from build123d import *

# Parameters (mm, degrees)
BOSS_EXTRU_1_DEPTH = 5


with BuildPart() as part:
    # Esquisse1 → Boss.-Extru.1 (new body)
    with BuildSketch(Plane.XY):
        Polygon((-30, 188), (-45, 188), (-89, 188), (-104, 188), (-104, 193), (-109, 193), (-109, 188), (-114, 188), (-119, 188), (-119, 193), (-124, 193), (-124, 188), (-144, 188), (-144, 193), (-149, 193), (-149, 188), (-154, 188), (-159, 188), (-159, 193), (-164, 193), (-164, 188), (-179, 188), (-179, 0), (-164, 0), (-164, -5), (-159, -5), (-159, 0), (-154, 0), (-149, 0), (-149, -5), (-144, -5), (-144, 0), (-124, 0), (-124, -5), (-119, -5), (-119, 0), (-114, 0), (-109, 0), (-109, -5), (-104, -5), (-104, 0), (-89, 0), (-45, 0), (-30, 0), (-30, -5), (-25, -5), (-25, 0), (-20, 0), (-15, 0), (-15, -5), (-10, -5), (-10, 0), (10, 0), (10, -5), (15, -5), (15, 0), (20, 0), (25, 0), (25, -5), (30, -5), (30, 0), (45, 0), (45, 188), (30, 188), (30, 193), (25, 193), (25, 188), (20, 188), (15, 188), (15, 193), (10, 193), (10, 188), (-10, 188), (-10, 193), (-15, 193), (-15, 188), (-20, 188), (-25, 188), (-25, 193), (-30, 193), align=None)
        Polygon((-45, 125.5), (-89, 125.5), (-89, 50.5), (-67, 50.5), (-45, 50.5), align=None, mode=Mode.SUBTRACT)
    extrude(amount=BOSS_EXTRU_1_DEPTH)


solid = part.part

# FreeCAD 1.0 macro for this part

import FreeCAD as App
import Part
import Sketcher


def add_polygon(sketch, points):
    """Adds a closed chain of lines whose ends are joined by coincident constraints."""
    first, n = sketch.GeometryCount, len(points)
    for a, b in zip(points, points[1:] + points[:1]):
        sketch.addGeometry(Part.LineSegment(App.Vector(*a, 0), App.Vector(*b, 0)), False)
    for i in range(n):
        sketch.addConstraint(Sketcher.Constraint("Coincident", first + i, 2, first + (i + 1) % n, 1))

doc = App.newDocument("Part")
params = doc.addObject("Spreadsheet::Sheet", "Params")
for row, (alias, value) in enumerate([
    ("sketch1_width", "74 mm"),
    ("sketch1_width2", "5 mm"),
    ("sketch1_width3", "10 mm"),
    ("sketch1_width4", "20 mm"),
    ("sketch1_width5", "15 mm"),
    ("pad1_length", "5 mm"),
], start=1):
    params.set(f"A{row}", alias)
    params.set(f"B{row}", "=" + value)
    params.setAlias(f"B{row}", alias)

body = doc.addObject("PartDesign::Body", "Body")

# Sketch on XY plane
sketch1 = body.newObject("Sketcher::SketchObject", "Sketch")
sketch1.AttachmentSupport = (doc.getObject("XY_Plane"), [""])
sketch1.MapMode = "FlatFace"
add_polygon(sketch1, [(-30, 188), (-104, 188), (-104, 193), (-109, 193), (-109, 188), (-119, 188), (-119, 193), (-124, 193), (-124, 188), (-144, 188), (-144, 193), (-149, 193), (-149, 188), (-159, 188), (-159, 193), (-164, 193), (-164, 188), (-179, 188), (-179, 0), (-164, 0), (-164, -5), (-159, -5), (-159, 0), (-149, 0), (-149, -5), (-144, -5), (-144, 0), (-124, 0), (-124, -5), (-119, -5), (-119, 0), (-109, 0), (-109, -5), (-104, -5), (-104, 0), (-30, 0), (-30, -5), (-25, -5), (-25, 0), (-15, 0), (-15, -5), (-10, -5), (-10, 0), (10, 0), (10, -5), (15, -5), (15, 0), (25, 0), (25, -5), (30, -5), (30, 0), (45, 0), (45, 188), (30, 188), (30, 193), (25, 193), (25, 188), (15, 188), (15, 193), (10, 193), (10, 188), (-10, 188), (-10, 193), (-15, 193), (-15, 188), (-25, 188), (-25, 193), (-30, 193)])  # lines 0-67
add_polygon(sketch1, [(-89, 126), (-45, 126), (-45, 50), (-89, 50)])  # lines 68-71
sketch1.addConstraint(Sketcher.Constraint("Horizontal", 0))
sketch1.addConstraint(Sketcher.Constraint("Vertical", 1))
sketch1.addConstraint(Sketcher.Constraint("Horizontal", 2))
sketch1.addConstraint(Sketcher.Constraint("Vertical", 3))
sketch1.addConstraint(Sketcher.Constraint("Horizontal", 4))
sketch1.addConstraint(Sketcher.Constraint("Vertical", 5))
sketch1.addConstraint(Sketcher.Constraint("Horizontal", 6))
sketch1.addConstraint(Sketcher.Constraint("Vertical", 7))
sketch1.addConstraint(Sketcher.Constraint("Horizontal", 8))
sketch1.addConstraint(Sketcher.Constraint("Vertical", 9))
sketch1.addConstraint(Sketcher.Constraint("Horizontal", 10))
sketch1.addConstraint(Sketcher.Constraint("Vertical", 11))
sketch1.addConstraint(Sketcher.Constraint("Horizontal", 12))
sketch1.addConstraint(Sketcher.Constraint("Vertical", 13))
sketch1.addConstraint(Sketcher.Constraint("Horizontal", 14))
sketch1.addConstraint(Sketcher.Constraint("Vertical", 15))
sketch1.addConstraint(Sketcher.Constraint("Horizontal", 16))
sketch1.addConstraint(Sketcher.Constraint("Vertical", 17))
sketch1.addConstraint(Sketcher.Constraint("Horizontal", 18))
sketch1.addConstraint(Sketcher.Constraint("Vertical", 19))
sketch1.addConstraint(Sketcher.Constraint("Horizontal", 20))
sketch1.addConstraint(Sketcher.Constraint("Vertical", 21))
sketch1.addConstraint(Sketcher.Constraint("Horizontal", 22))
sketch1.addConstraint(Sketcher.Constraint("Vertical", 23))
sketch1.addConstraint(Sketcher.Constraint("Horizontal", 24))
sketch1.addConstraint(Sketcher.Constraint("Vertical", 25))
sketch1.addConstraint(Sketcher.Constraint("Horizontal", 26))
sketch1.addConstraint(Sketcher.Constraint("Vertical", 27))
sketch1.addConstraint(Sketcher.Constraint("Horizontal", 28))
sketch1.addConstraint(Sketcher.Constraint("Vertical", 29))
sketch1.addConstraint(Sketcher.Constraint("Horizontal", 30))
sketch1.addConstraint(Sketcher.Constraint("Vertical", 31))
sketch1.addConstraint(Sketcher.Constraint("Horizontal", 32))
sketch1.addConstraint(Sketcher.Constraint("Vertical", 33))
sketch1.addConstraint(Sketcher.Constraint("Horizontal", 34))
sketch1.addConstraint(Sketcher.Constraint("Vertical", 35))
sketch1.addConstraint(Sketcher.Constraint("Horizontal", 36))
sketch1.addConstraint(Sketcher.Constraint("Vertical", 37))
sketch1.addConstraint(Sketcher.Constraint("Horizontal", 38))
sketch1.addConstraint(Sketcher.Constraint("Vertical", 39))
sketch1.addConstraint(Sketcher.Constraint("Horizontal", 40))
sketch1.addConstraint(Sketcher.Constraint("Vertical", 41))
sketch1.addConstraint(Sketcher.Constraint("Horizontal", 42))
sketch1.addConstraint(Sketcher.Constraint("Vertical", 43))
sketch1.addConstraint(Sketcher.Constraint("Horizontal", 44))
sketch1.addConstraint(Sketcher.Constraint("Vertical", 45))
sketch1.addConstraint(Sketcher.Constraint("Horizontal", 46))
sketch1.addConstraint(Sketcher.Constraint("Vertical", 47))
sketch1.addConstraint(Sketcher.Constraint("Horizontal", 48))
sketch1.addConstraint(Sketcher.Constraint("Vertical", 49))
sketch1.addConstraint(Sketcher.Constraint("Horizontal", 50))
sketch1.addConstraint(Sketcher.Constraint("Vertical", 51))
sketch1.addConstraint(Sketcher.Constraint("Horizontal", 52))
sketch1.addConstraint(Sketcher.Constraint("Vertical", 53))
sketch1.addConstraint(Sketcher.Constraint("Horizontal", 54))
sketch1.addConstraint(Sketcher.Constraint("Vertical", 55))
sketch1.addConstraint(Sketcher.Constraint("Horizontal", 56))
sketch1.addConstraint(Sketcher.Constraint("Vertical", 57))
sketch1.addConstraint(Sketcher.Constraint("Horizontal", 58))
sketch1.addConstraint(Sketcher.Constraint("Vertical", 59))
sketch1.addConstraint(Sketcher.Constraint("Horizontal", 60))
sketch1.addConstraint(Sketcher.Constraint("Vertical", 61))
sketch1.addConstraint(Sketcher.Constraint("Horizontal", 62))
sketch1.addConstraint(Sketcher.Constraint("Vertical", 63))
sketch1.addConstraint(Sketcher.Constraint("Horizontal", 64))
sketch1.addConstraint(Sketcher.Constraint("Vertical", 65))
sketch1.addConstraint(Sketcher.Constraint("Horizontal", 66))
sketch1.addConstraint(Sketcher.Constraint("Vertical", 67))
sketch1.addConstraint(Sketcher.Constraint("Horizontal", 68))
sketch1.addConstraint(Sketcher.Constraint("Vertical", 69))
sketch1.addConstraint(Sketcher.Constraint("Horizontal", 70))
sketch1.addConstraint(Sketcher.Constraint("Vertical", 71))
sketch1.addConstraint(Sketcher.Constraint("Symmetric", 41, 2, 42, 2, -1, 1))
sketch1.addConstraint(Sketcher.Constraint("Symmetric", 38, 2, 45, 2, -1, 1))
sketch1.addConstraint(Sketcher.Constraint("Symmetric", 34, 2, 49, 2, -1, 1))
sketch1.addConstraint(Sketcher.Constraint("Symmetric", 37, 2, 46, 2, -2))
sketch1.addConstraint(Sketcher.Constraint("Symmetric", 58, 2, 61, 2, -2))
sketch1.addConstraint(Sketcher.Constraint("Symmetric", 56, 2, 63, 2, -2))
sketch1.addConstraint(Sketcher.Constraint("Symmetric", 54, 2, 65, 2, -2))
sketch1.addConstraint(Sketcher.Constraint("Symmetric", 52, 2, 67, 2, -2))
sketch1.addConstraint(Sketcher.Constraint("PointOnObject", 17, 2, -1))
sketch1.addConstraint(Sketcher.Constraint("PointOnObject", 21, 2, -1))
sketch1.addConstraint(Sketcher.Constraint("PointOnObject", 25, 2, -1))
sketch1.addConstraint(Sketcher.Constraint("PointOnObject", 29, 2, -1))
sketch1.addConstraint(Sketcher.Constraint("PointOnObject", 33, 2, -1))
sketch1.addConstraint(Sketcher.Constraint("Horizontal", 0, 2, 3, 2))
sketch1.addConstraint(Sketcher.Constraint("Horizontal", 2, 2, 5, 2))
sketch1.addConstraint(Sketcher.Constraint("Horizontal", 4, 2, 7, 2))
sketch1.addConstraint(Sketcher.Constraint("Horizontal", 6, 2, 9, 2))
sketch1.addConstraint(Sketcher.Constraint("Horizontal", 8, 2, 11, 2))
sketch1.addConstraint(Sketcher.Constraint("Horizontal", 10, 2, 13, 2))
sketch1.addConstraint(Sketcher.Constraint("Horizontal", 12, 2, 15, 2))
sketch1.addConstraint(Sketcher.Constraint("Horizontal", 20, 2, 23, 2))
sketch1.addConstraint(Sketcher.Constraint("Horizontal", 24, 2, 27, 2))
sketch1.addConstraint(Sketcher.Constraint("Horizontal", 28, 2, 31, 2))
sketch1.addConstraint(Sketcher.Constraint("Horizontal", 32, 2, 35, 2))
sketch1.addConstraint(Sketcher.Constraint("Horizontal", 36, 2, 39, 2))
sketch1.addConstraint(Sketcher.Constraint("Horizontal", 40, 2, 43, 2))
sketch1.addConstraint(Sketcher.Constraint("Horizontal", 44, 2, 47, 2))
sketch1.addConstraint(Sketcher.Constraint("Horizontal", 14, 2, 53, 2))
sketch1.addConstraint(Sketcher.Constraint("Horizontal", 52, 2, 55, 2))
sketch1.addConstraint(Sketcher.Constraint("Horizontal", 54, 2, 57, 2))
sketch1.addConstraint(Sketcher.Constraint("Horizontal", 56, 2, 59, 2))
sketch1.addConstraint(Sketcher.Constraint("Vertical", 15, 2, 18, 2))
sketch1.addConstraint(Sketcher.Constraint("Vertical", 13, 2, 20, 2))
sketch1.addConstraint(Sketcher.Constraint("Vertical", 11, 2, 22, 2))
sketch1.addConstraint(Sketcher.Constraint("Vertical", 9, 2, 24, 2))
sketch1.addConstraint(Sketcher.Constraint("Vertical", 7, 2, 26, 2))
sketch1.addConstraint(Sketcher.Constraint("Vertical", 5, 2, 28, 2))
sketch1.addConstraint(Sketcher.Constraint("Vertical", 3, 2, 30, 2))
sketch1.addConstraint(Sketcher.Constraint("Vertical", 1, 2, 32, 2))
sketch1.addConstraint(Sketcher.Constraint("Vertical", 49, 2, 52, 2))
sketch1.addConstraint(Sketcher.Constraint("Vertical", 47, 2, 54, 2))
sketch1.addConstraint(Sketcher.Constraint("Vertical", 45, 2, 56, 2))
sketch1.addConstraint(Sketcher.Constraint("Vertical", 43, 2, 58, 2))
sketch1.addConstraint(Sketcher.Constraint("Equal", 2, 6))
sketch1.addConstraint(Sketcher.Constraint("Equal", 6, 10))
sketch1.addConstraint(Sketcher.Constraint("Equal", 4, 12))
sketch1.addConstraint(Sketcher.Constraint("Equal", 10, 14))
sketch1.addConstraint(Sketcher.Constraint("Equal", 32, 36))
sketch1.addConstraint(Sketcher.Constraint("Equal", 30, 38))
sketch1.addConstraint(Sketcher.Constraint("Equal", 36, 40))
sketch1.addConstraint(Sketcher.Constraint("Equal", 26, 42))
sketch1.addConstraint(Sketcher.Constraint("Equal", 18, 50))
sketch1.addConstraint(Sketcher.Constraint("Equal", 66, 1))
sketch1.addConstraint(Sketcher.Constraint("Equal", 15, 19))
sketch1.addConstraint(Sketcher.Constraint("DistanceX", 0, 2, 0, 1, 74.0))
sketch1.addConstraint(Sketcher.Constraint("DistanceX", 2, 2, 2, 1, 5.0))
sketch1.addConstraint(Sketcher.Constraint("DistanceX", 4, 2, 4, 1, 10.0))
sketch1.addConstraint(Sketcher.Constraint("DistanceX", 8, 2, 8, 1, 20.0))
sketch1.addConstraint(Sketcher.Constraint("DistanceX", 16, 2, 16, 1, 15.0))
sketch1.addConstraint(Sketcher.Constraint("DistanceX", 68, 1, 68, 2, 44.0))
sketch1.addConstraint(Sketcher.Constraint("DistanceY", 17, 2, 17, 1, 188.0))
sketch1.addConstraint(Sketcher.Constraint("DistanceY", 69, 2, 69, 1, 75.0))
sketch1.addConstraint(Sketcher.Constraint("DistanceX", 68, 2, -1, 1, 45.0))
sketch1.addConstraint(Sketcher.Constraint("DistanceY", -1, 1, 68, 2, 125.5))
sketch1.setExpression("Constraints[198]", "Params.sketch1_width")
sketch1.setExpression("Constraints[199]", "Params.sketch1_width2")
sketch1.setExpression("Constraints[200]", "Params.sketch1_width3")
sketch1.setExpression("Constraints[201]", "Params.sketch1_width4")
sketch1.setExpression("Constraints[202]", "Params.sketch1_width5")
pad1 = body.newObject("PartDesign::Pad", "Pad")
pad1.Profile = sketch1
pad1.setExpression("Length", "Params.pad1_length")

doc.recompute()
